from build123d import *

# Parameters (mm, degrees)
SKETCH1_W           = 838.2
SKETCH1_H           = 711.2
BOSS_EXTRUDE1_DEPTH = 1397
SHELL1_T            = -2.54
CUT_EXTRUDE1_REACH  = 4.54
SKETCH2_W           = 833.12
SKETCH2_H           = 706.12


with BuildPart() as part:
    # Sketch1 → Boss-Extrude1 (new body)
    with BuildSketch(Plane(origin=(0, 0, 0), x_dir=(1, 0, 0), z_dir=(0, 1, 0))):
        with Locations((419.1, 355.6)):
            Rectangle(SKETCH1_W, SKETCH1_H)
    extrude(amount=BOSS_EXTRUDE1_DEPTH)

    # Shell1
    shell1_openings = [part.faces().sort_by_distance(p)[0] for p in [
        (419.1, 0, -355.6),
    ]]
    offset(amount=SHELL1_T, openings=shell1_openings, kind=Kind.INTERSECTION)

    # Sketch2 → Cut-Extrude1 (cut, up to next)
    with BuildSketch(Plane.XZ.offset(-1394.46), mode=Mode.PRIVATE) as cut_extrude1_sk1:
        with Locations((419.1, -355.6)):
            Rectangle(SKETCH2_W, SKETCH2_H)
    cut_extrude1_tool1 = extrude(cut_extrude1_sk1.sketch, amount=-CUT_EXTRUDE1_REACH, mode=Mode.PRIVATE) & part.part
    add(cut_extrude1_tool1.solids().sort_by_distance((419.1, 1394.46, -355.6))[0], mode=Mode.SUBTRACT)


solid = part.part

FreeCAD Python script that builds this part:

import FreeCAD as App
import Part
import Sketcher
from FreeCAD import Vector
Q = App.Units.Quantity


def faces_at(feature, points):
    """Names of the faces that lie closest to the given points."""
    faces = feature.Shape.Faces
    near = lambda p: min(range(len(faces)), key=lambda i: faces[i].distToShape(Part.Vertex(*p))[0])
    return sorted({f"Face{near(p) + 1}" for p in points})


def add_polygon(sketch, points):
    """Adds a closed chain of lines whose ends are joined by coincident constraints."""
    first, n = sketch.GeometryCount, len(points)
    for a, b in zip(points, points[1:] + points[:1]):
        sketch.addGeometry(Part.LineSegment(App.Vector(*a, 0), App.Vector(*b, 0)), False)
    for i in range(n):
        sketch.addConstraint(Sketcher.Constraint("Coincident", first + i, 2, first + (i + 1) % n, 1))

doc = App.newDocument("Part")
body = doc.addObject("PartDesign::Body", "Body")

sketch1 = body.newObject("Sketcher::SketchObject", "Sketch")
sketch1.AttachmentSupport = (doc.getObject("XZ_Plane"), [""])
sketch1.MapMode = "FlatFace"
add_polygon(sketch1, [(0, -711), (0, 0), (838, 0), (838, -711)])
sketch1.addConstraint([
    Sketcher.Constraint("Vertical", 0),
    Sketcher.Constraint("Horizontal", 1),
    Sketcher.Constraint("Vertical", 2),
    Sketcher.Constraint("Horizontal", 3),
    Sketcher.Constraint("Coincident", 0, 2, -1, 1),
    Sketcher.Constraint("DistanceX", 1, 1, 1, 2, Q("33 in")),
    Sketcher.Constraint("DistanceY", 0, 1, 0, 2, Q("28 in")),
])
pad1 = body.newObject("PartDesign::Pad", "Pad")
pad1.Profile = sketch1
pad1.Length = Q("55 in")
pad1.Reversed = True
doc.recompute()

thickness = body.newObject("PartDesign::Thickness", "Thickness")
thickness.Base = (pad1, faces_at(pad1, [(419.1, 0, -355.6)]))
thickness.Value = Q("0.1 in")
thickness.Reversed = True
thickness.Join = "Intersection"

sketch2 = body.newObject("Sketcher::SketchObject", "Sketch001")
sketch2.AttachmentSupport = (doc.getObject("XZ_Plane"), [""])
sketch2.MapMode = "FlatFace"
sketch2.AttachmentOffset = App.Placement(Vector(0, 0, -54.9 * 25.4), App.Rotation())
add_polygon(sketch2, [(3, -3), (3, -709), (836, -709), (836, -3)])
sketch2.addConstraint([
    Sketcher.Constraint("Vertical", 0),
    Sketcher.Constraint("Horizontal", 1),
    Sketcher.Constraint("Vertical", 2),
    Sketcher.Constraint("Horizontal", 3),
    Sketcher.Constraint("DistanceX", 1, 1, 1, 2, Q("32.8 in")),
    Sketcher.Constraint("DistanceY", 0, 2, 0, 1, Q("27.8 in")),
    Sketcher.Constraint("DistanceX", -1, 1, 0, 2, Q("0.1 in")),
    Sketcher.Constraint("DistanceY", 0, 2, -1, 1, Q("27.9 in")),
])
pocket1 = body.newObject("PartDesign::Pocket", "Pocket")
pocket1.Profile = sketch2
pocket1.Type = "UpToFirst"

doc.recompute()
